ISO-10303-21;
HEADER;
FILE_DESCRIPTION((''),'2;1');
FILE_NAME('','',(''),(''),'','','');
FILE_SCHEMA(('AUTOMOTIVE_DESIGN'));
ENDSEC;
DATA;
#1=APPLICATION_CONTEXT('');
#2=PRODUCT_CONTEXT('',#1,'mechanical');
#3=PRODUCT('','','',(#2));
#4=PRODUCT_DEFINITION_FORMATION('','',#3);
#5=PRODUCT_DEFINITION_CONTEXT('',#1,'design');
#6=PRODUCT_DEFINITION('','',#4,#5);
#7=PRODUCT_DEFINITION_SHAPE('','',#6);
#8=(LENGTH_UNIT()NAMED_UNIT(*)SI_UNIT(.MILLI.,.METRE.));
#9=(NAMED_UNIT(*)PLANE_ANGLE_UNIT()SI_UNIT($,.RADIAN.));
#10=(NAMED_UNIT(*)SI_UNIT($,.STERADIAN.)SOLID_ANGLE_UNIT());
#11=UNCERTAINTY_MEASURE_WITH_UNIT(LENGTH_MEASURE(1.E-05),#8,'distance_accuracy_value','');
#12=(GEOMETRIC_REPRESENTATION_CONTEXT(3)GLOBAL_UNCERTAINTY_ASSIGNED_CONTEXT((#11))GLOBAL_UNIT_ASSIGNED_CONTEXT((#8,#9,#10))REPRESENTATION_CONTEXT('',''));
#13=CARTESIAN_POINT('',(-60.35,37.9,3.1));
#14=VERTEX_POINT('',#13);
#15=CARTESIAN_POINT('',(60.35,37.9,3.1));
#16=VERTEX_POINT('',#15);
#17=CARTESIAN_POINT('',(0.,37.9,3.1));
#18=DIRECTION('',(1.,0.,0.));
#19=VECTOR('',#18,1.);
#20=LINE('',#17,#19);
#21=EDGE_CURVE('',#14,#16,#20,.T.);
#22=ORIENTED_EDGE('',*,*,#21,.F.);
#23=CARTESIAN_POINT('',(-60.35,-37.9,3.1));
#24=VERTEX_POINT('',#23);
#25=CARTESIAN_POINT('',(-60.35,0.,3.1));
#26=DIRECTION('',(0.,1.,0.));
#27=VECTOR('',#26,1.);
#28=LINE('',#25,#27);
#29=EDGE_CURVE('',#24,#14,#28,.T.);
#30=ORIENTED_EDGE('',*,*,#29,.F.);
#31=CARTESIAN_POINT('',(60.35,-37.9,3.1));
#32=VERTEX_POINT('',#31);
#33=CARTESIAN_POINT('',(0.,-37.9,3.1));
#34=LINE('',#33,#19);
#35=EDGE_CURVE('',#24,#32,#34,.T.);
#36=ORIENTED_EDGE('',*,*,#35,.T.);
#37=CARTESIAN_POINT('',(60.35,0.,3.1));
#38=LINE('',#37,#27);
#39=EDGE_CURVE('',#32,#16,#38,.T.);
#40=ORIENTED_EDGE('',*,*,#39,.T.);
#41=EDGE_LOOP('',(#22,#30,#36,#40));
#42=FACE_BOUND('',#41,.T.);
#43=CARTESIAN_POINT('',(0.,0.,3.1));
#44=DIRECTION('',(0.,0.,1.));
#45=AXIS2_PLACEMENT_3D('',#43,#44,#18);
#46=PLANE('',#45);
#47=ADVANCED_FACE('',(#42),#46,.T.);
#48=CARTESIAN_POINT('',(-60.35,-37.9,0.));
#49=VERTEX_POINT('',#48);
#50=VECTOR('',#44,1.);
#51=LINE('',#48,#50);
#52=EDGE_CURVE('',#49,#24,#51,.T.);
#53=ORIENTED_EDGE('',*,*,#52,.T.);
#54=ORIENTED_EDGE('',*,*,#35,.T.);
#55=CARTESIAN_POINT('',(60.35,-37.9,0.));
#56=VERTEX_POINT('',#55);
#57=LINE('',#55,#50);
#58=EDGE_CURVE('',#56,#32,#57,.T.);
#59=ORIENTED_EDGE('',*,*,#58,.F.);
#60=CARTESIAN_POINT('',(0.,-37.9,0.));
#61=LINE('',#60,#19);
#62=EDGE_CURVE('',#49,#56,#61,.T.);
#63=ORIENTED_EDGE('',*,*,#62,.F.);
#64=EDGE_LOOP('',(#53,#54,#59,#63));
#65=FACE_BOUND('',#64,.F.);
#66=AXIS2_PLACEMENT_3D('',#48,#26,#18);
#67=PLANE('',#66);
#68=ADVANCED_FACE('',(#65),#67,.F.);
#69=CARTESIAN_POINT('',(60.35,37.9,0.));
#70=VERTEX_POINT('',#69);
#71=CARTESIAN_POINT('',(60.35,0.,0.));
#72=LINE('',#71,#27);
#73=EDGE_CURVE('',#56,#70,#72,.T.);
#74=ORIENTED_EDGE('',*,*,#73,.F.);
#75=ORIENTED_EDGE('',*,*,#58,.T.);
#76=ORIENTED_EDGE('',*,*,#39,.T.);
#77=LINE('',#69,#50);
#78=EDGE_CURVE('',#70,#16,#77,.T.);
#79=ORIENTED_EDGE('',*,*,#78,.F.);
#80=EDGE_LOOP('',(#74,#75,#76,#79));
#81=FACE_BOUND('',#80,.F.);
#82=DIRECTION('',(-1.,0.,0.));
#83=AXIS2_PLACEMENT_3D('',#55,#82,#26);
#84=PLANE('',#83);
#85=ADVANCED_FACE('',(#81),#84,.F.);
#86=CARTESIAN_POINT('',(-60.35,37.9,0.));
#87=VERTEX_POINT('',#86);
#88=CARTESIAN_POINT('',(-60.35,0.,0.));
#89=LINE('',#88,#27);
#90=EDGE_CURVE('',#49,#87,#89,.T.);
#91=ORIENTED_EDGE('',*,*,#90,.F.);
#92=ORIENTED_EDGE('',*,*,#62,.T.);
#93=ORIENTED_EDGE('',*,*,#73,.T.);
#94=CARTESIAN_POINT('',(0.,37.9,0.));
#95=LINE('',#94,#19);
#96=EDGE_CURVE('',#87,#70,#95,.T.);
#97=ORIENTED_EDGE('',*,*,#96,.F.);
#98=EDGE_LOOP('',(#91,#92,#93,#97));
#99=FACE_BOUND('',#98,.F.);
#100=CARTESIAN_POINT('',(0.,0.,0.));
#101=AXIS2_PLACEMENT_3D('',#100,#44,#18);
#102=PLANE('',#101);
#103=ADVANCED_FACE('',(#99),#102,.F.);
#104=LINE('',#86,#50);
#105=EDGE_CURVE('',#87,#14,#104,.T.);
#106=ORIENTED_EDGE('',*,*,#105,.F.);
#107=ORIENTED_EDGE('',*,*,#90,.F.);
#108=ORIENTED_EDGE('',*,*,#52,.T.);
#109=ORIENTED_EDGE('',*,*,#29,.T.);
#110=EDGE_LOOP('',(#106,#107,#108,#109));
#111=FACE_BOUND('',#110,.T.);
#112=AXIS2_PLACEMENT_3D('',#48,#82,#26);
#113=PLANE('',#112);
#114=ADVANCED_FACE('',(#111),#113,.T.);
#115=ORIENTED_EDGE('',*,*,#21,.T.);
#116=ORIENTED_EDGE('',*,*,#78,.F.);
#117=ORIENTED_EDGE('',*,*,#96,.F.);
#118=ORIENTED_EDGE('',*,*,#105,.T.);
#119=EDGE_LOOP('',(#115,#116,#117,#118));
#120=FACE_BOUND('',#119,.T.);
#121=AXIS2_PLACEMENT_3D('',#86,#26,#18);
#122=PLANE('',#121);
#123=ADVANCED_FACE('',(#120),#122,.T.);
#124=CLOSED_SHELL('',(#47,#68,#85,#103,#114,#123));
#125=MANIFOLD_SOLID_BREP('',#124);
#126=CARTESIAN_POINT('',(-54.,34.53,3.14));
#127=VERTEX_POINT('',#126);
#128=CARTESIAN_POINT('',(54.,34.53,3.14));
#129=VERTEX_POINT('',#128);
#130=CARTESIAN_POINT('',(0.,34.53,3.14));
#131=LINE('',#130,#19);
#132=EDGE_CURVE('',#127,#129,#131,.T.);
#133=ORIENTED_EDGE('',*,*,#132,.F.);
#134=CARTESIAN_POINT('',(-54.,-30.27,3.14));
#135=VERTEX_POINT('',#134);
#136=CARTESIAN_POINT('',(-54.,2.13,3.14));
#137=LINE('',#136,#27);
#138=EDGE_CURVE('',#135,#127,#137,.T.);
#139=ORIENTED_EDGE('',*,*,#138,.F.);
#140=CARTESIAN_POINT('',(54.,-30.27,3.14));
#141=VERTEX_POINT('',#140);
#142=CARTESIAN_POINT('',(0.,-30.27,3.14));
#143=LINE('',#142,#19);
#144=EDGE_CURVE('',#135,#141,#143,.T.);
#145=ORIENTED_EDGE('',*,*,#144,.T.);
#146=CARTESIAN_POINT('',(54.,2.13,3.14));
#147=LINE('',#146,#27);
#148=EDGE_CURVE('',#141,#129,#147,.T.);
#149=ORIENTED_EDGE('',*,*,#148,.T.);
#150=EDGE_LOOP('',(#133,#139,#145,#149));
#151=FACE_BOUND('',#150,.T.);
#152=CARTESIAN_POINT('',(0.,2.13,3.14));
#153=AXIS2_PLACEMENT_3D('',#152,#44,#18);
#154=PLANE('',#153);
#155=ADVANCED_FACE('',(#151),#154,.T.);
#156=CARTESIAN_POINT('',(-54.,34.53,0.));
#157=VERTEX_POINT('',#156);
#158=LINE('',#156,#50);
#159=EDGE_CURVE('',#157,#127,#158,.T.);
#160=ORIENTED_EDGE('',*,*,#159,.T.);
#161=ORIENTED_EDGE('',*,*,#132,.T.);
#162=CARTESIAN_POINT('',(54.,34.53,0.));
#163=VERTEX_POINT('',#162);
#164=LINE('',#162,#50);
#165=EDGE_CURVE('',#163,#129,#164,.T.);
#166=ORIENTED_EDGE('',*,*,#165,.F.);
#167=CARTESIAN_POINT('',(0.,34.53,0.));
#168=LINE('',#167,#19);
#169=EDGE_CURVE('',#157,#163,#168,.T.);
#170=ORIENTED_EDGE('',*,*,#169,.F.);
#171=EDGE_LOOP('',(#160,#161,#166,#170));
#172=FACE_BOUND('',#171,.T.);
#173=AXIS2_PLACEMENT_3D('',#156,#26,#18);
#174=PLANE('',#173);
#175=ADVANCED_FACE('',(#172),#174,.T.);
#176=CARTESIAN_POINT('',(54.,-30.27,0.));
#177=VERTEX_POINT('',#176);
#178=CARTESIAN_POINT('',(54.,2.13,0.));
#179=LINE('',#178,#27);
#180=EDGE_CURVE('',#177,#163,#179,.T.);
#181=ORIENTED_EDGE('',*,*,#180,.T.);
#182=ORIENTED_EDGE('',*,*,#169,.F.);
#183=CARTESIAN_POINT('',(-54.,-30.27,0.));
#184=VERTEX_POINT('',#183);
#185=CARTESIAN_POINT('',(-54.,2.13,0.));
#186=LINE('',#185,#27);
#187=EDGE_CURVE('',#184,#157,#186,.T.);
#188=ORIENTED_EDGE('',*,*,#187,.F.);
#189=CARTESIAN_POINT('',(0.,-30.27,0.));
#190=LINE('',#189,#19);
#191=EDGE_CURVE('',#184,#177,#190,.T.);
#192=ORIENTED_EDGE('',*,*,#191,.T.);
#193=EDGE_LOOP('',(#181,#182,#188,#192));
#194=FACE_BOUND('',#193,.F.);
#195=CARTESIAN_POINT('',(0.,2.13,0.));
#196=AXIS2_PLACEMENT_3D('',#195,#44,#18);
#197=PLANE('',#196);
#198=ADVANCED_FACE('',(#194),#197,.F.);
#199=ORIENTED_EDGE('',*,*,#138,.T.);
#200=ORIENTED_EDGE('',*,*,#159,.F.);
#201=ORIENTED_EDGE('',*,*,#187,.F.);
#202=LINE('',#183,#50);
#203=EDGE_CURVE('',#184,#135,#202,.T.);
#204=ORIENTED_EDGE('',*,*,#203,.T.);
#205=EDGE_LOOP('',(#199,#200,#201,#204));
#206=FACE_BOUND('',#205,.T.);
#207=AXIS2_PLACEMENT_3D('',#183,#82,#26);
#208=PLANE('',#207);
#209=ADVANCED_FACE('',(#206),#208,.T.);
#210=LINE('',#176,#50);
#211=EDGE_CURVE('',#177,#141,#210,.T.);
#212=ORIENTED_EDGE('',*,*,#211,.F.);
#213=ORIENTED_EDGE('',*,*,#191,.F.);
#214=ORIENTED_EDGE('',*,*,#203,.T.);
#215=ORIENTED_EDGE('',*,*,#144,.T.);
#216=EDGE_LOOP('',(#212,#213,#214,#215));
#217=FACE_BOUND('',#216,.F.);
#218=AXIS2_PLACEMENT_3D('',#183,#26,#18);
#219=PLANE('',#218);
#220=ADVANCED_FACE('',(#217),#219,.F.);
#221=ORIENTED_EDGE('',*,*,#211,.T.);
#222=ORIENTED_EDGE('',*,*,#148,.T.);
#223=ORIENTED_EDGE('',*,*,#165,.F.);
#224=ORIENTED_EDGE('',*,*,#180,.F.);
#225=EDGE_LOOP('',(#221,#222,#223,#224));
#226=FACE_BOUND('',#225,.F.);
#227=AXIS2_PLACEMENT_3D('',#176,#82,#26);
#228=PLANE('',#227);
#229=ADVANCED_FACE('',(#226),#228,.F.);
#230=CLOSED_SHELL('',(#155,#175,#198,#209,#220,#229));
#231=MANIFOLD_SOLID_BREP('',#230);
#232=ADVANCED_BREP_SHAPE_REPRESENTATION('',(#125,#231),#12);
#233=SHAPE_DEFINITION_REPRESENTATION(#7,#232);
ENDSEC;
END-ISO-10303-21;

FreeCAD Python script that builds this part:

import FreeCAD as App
import Part
import Sketcher

V = App.Vector
Q = App.Units.Quantity

doc = App.newDocument("Part")
params = doc.addObject("Spreadsheet::Sheet", "Params")
for row, (alias, value) in enumerate([
    ("sketch1_width", "120.7 mm"),
    ("sketch1_height", "75.8 mm"),
    ("pad1_length", "3.1 mm"),
    ("sketch2_width", "108 mm"),
    ("sketch2_height", "64.8 mm"),
    ("pad2_length", "3.14 mm"),
], start=1):
    params.set(f"A{row}", alias)
    params.set(f"B{row}", "=" + value)
    params.setAlias(f"B{row}", alias)

body = doc.addObject("PartDesign::Body", "Body")

# Sketch on XY plane
sketch1 = doc.addObject("Sketcher::SketchObject", "Sketch")
body.addObject(sketch1)
sketch1.AttachmentSupport = (doc.XY_Plane, [""])
sketch1.MapMode = "FlatFace"
sketch1.addGeometry([
    Part.LineSegment(V(-60, 38, 0), V(-60, -38, 0)),
    Part.LineSegment(V(-60, -38, 0), V(60, -38, 0)),
    Part.LineSegment(V(60, -38, 0), V(60, 38, 0)),
    Part.LineSegment(V(60, 38, 0), V(-60, 38, 0)),
], False)
sketch1.addConstraint([
    Sketcher.Constraint("Coincident", 0, 2, 1, 1),
    Sketcher.Constraint("Coincident", 1, 2, 2, 1),
    Sketcher.Constraint("Coincident", 2, 2, 3, 1),
    Sketcher.Constraint("Coincident", 3, 2, 0, 1),
    Sketcher.Constraint("Vertical", 0),
    Sketcher.Constraint("Horizontal", 1),
    Sketcher.Constraint("Vertical", 2),
    Sketcher.Constraint("Horizontal", 3),
    Sketcher.Constraint("Symmetric", 0, 2, 2, 2, -1, 1),
    Sketcher.Constraint("DistanceX", 1, 1, 1, 2, Q("120.7 mm")),
    Sketcher.Constraint("DistanceY", 0, 2, 0, 1, Q("75.8 mm")),
])
sketch1.setExpression("Constraints[9]", "Params.sketch1_width")
sketch1.setExpression("Constraints[10]", "Params.sketch1_height")
pad1 = doc.addObject("PartDesign::Pad", "Pad")
body.addObject(pad1)
pad1.Profile = sketch1
pad1.setExpression("Length", "Params.pad1_length")
body2 = doc.addObject("PartDesign::Body", "Body001")

# Sketch on XY plane
sketch2 = doc.addObject("Sketcher::SketchObject", "Sketch001")
body2.addObject(sketch2)
sketch2.AttachmentSupport = (doc.getObject("XY_Plane001"), [""])
sketch2.MapMode = "FlatFace"
sketch2.addGeometry([
    Part.LineSegment(V(-54, 35, 0), V(-54, -30, 0)),
    Part.LineSegment(V(-54, -30, 0), V(54, -30, 0)),
    Part.LineSegment(V(54, -30, 0), V(54, 35, 0)),
    Part.LineSegment(V(54, 35, 0), V(-54, 35, 0)),
], False)
sketch2.addConstraint([
    Sketcher.Constraint("Coincident", 0, 2, 1, 1),
    Sketcher.Constraint("Coincident", 1, 2, 2, 1),
    Sketcher.Constraint("Coincident", 2, 2, 3, 1),
    Sketcher.Constraint("Coincident", 3, 2, 0, 1),
    Sketcher.Constraint("Vertical", 0),
    Sketcher.Constraint("Horizontal", 1),
    Sketcher.Constraint("Vertical", 2),
    Sketcher.Constraint("Horizontal", 3),
    Sketcher.Constraint("DistanceX", 1, 1, 1, 2, Q("108 mm")),
    Sketcher.Constraint("DistanceY", 0, 2, 0, 1, Q("64.8 mm")),
    Sketcher.Constraint("DistanceX", 0, 2, -1, 1, Q("54 mm")),
    Sketcher.Constraint("DistanceY", 0, 2, -1, 1, Q("30.27 mm")),
])
sketch2.setExpression("Constraints[8]", "Params.sketch2_width")
sketch2.setExpression("Constraints[9]", "Params.sketch2_height")
pad2 = doc.addObject("PartDesign::Pad", "Pad001")
body2.addObject(pad2)
pad2.Profile = sketch2
pad2.setExpression("Length", "Params.pad2_length")

doc.recompute()
